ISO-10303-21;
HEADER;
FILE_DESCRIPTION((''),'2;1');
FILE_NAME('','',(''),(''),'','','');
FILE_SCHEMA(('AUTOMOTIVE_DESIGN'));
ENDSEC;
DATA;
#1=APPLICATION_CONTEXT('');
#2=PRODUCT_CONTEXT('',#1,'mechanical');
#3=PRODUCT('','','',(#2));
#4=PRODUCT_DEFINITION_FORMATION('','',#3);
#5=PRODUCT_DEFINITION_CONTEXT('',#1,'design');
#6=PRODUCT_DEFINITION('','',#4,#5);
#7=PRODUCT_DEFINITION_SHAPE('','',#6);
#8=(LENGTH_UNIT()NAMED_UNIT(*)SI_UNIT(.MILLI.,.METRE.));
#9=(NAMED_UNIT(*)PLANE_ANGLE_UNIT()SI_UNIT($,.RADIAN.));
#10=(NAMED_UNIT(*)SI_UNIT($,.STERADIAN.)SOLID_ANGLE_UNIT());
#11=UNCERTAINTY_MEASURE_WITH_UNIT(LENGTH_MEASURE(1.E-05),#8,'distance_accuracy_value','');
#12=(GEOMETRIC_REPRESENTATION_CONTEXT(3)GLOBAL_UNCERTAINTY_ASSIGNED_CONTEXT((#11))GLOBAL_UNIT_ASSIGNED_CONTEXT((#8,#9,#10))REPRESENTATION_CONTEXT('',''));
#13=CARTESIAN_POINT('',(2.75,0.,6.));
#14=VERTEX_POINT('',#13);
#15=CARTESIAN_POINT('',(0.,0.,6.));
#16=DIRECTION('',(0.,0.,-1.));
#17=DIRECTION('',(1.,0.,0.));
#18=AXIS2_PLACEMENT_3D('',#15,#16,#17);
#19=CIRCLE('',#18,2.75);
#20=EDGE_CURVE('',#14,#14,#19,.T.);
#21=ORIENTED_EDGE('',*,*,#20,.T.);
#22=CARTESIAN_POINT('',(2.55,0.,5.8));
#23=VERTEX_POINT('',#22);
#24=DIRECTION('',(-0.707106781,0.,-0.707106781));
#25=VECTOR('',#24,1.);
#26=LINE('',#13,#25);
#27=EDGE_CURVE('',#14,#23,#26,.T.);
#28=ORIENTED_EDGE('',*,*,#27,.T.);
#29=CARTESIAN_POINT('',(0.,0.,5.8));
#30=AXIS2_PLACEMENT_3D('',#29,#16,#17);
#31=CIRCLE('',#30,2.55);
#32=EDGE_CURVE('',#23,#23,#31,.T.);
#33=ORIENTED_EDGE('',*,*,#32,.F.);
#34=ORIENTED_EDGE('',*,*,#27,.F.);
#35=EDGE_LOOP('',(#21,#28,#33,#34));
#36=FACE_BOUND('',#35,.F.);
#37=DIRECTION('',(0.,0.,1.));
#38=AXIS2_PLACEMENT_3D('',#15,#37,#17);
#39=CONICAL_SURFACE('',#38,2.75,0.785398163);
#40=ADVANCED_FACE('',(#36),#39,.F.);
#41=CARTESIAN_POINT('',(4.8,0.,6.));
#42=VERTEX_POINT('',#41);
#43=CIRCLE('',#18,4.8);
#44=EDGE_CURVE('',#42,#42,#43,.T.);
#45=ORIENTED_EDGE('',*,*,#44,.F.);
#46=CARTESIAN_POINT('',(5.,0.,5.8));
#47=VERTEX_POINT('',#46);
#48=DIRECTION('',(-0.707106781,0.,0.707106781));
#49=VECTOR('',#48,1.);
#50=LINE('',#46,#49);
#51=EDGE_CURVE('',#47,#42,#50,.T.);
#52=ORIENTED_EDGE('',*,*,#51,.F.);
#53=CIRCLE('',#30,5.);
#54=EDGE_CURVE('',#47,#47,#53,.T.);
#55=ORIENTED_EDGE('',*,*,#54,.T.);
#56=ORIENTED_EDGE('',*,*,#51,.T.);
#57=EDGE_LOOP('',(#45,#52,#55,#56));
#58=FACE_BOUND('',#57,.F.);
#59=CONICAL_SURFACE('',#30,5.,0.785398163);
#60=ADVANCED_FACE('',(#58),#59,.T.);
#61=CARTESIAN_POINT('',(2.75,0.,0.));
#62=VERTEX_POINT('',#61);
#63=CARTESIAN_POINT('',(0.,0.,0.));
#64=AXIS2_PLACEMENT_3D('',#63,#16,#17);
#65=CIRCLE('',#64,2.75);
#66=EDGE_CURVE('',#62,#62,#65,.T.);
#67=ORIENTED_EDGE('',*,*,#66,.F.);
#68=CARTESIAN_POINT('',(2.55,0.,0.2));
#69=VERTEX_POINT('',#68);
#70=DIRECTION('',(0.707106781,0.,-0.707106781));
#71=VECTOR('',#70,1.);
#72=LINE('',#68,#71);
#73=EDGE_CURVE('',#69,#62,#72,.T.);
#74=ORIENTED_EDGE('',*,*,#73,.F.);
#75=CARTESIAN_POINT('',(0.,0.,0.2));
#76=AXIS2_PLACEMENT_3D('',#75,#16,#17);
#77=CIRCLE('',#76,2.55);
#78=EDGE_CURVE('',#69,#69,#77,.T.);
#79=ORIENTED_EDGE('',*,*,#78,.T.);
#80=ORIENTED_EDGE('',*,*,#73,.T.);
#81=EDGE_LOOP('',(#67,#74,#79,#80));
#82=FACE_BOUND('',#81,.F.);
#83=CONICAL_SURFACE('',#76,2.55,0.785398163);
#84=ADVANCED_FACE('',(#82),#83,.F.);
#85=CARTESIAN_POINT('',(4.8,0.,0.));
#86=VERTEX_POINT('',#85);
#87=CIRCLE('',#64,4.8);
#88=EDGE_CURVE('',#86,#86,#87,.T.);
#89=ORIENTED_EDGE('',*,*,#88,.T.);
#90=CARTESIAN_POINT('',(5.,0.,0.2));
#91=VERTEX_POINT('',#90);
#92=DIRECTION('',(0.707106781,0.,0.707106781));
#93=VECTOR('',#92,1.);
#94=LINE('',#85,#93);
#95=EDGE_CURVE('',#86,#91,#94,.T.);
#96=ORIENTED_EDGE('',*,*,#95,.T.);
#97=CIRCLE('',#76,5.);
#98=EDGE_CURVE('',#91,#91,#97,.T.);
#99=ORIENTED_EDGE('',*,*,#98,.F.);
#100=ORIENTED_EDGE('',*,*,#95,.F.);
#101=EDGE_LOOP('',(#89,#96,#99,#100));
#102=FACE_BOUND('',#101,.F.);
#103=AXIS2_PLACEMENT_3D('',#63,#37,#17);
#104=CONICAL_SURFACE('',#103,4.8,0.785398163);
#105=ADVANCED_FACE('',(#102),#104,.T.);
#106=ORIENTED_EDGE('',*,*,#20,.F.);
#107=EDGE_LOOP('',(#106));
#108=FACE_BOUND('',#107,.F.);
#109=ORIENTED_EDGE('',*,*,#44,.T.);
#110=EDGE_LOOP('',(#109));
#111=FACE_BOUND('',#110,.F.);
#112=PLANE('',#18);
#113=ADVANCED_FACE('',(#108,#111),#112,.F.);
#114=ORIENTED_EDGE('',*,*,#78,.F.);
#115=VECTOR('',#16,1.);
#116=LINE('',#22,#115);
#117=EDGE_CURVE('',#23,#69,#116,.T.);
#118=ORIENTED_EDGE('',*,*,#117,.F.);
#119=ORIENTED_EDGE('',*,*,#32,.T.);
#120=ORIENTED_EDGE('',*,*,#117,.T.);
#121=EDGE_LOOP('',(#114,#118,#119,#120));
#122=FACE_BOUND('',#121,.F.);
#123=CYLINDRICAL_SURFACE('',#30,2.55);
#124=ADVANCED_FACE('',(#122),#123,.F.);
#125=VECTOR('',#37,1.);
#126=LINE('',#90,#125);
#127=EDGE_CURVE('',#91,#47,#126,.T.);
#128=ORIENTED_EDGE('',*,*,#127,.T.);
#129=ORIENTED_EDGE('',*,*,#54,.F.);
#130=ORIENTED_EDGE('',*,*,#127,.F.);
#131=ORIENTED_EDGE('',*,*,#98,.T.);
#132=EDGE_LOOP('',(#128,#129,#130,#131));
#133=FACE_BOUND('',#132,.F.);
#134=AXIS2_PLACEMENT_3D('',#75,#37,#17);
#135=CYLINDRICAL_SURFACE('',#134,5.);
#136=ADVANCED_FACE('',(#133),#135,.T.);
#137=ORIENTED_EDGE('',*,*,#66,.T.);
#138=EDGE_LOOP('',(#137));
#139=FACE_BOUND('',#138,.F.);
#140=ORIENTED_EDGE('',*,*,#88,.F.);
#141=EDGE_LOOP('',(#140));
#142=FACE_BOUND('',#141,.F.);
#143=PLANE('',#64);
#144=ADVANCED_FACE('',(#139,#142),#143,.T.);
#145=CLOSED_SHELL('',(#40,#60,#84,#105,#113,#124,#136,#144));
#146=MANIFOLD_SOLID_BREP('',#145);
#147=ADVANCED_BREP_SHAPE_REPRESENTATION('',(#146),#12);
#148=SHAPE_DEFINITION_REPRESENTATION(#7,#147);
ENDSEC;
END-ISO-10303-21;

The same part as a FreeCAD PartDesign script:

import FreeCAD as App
import Part
import Sketcher

V = App.Vector


def add_polygon(sketch, points):
    """Adds a closed chain of lines whose ends are joined by coincident constraints."""
    first, n = sketch.GeometryCount, len(points)
    for a, b in zip(points, points[1:] + points[:1]):
        sketch.addGeometry(Part.LineSegment(App.Vector(*a, 0), App.Vector(*b, 0)), False)
    for i in range(n):
        sketch.addConstraint(Sketcher.Constraint("Coincident", first + i, 2, first + (i + 1) % n, 1))

doc = App.newDocument("Part")
body = doc.addObject("PartDesign::Body", "Body")

sketch1 = body.newObject("Sketcher::SketchObject", "Sketch")
sketch1.AttachmentSupport = (doc.getObject("XZ_Plane"), [""])
sketch1.MapMode = "FlatFace"
add_polygon(sketch1, [(2.75, 6), (2.55, 5.8), (2.55, 0.2), (2.75, 0), (4.8, 0), (5, 0.2), (5, 5.8), (4.8, 6)])
sketch1.addConstraint([
    Sketcher.Constraint("Vertical", 1),
    Sketcher.Constraint("Horizontal", 3),
    Sketcher.Constraint("Vertical", 5),
    Sketcher.Constraint("Horizontal", 7),
    Sketcher.Constraint("PointOnObject", 2, 2, -1),
    Sketcher.Constraint("Perpendicular", 0, 2),
    Sketcher.Constraint("Perpendicular", 2, 4),
    Sketcher.Constraint("Perpendicular", 4, 6),
    Sketcher.Constraint("Horizontal", 1, 2, 4, 2),
    Sketcher.Constraint("Horizontal", 0, 2, 5, 2),
    Sketcher.Constraint("Vertical", 3, 2, 6, 2),
    Sketcher.Constraint("Vertical", 2, 2, 7, 2),
    Sketcher.Constraint("DistanceY", 1, 2, 1, 1, 5.6),
    Sketcher.Constraint("DistanceX", -1, 1, 4, 2, 5.0),
    Sketcher.Constraint("DistanceY", -1, 1, 6, 2, 6.0),
    Sketcher.Constraint("DistanceX", 3, 1, 3, 2, 2.05),
])
revolution = body.newObject("PartDesign::Revolution", "Revolution")
revolution.Profile = sketch1
revolution.ReferenceAxis = (sketch1, ["V_Axis"])
revolution.Angle = 360

doc.recompute()
